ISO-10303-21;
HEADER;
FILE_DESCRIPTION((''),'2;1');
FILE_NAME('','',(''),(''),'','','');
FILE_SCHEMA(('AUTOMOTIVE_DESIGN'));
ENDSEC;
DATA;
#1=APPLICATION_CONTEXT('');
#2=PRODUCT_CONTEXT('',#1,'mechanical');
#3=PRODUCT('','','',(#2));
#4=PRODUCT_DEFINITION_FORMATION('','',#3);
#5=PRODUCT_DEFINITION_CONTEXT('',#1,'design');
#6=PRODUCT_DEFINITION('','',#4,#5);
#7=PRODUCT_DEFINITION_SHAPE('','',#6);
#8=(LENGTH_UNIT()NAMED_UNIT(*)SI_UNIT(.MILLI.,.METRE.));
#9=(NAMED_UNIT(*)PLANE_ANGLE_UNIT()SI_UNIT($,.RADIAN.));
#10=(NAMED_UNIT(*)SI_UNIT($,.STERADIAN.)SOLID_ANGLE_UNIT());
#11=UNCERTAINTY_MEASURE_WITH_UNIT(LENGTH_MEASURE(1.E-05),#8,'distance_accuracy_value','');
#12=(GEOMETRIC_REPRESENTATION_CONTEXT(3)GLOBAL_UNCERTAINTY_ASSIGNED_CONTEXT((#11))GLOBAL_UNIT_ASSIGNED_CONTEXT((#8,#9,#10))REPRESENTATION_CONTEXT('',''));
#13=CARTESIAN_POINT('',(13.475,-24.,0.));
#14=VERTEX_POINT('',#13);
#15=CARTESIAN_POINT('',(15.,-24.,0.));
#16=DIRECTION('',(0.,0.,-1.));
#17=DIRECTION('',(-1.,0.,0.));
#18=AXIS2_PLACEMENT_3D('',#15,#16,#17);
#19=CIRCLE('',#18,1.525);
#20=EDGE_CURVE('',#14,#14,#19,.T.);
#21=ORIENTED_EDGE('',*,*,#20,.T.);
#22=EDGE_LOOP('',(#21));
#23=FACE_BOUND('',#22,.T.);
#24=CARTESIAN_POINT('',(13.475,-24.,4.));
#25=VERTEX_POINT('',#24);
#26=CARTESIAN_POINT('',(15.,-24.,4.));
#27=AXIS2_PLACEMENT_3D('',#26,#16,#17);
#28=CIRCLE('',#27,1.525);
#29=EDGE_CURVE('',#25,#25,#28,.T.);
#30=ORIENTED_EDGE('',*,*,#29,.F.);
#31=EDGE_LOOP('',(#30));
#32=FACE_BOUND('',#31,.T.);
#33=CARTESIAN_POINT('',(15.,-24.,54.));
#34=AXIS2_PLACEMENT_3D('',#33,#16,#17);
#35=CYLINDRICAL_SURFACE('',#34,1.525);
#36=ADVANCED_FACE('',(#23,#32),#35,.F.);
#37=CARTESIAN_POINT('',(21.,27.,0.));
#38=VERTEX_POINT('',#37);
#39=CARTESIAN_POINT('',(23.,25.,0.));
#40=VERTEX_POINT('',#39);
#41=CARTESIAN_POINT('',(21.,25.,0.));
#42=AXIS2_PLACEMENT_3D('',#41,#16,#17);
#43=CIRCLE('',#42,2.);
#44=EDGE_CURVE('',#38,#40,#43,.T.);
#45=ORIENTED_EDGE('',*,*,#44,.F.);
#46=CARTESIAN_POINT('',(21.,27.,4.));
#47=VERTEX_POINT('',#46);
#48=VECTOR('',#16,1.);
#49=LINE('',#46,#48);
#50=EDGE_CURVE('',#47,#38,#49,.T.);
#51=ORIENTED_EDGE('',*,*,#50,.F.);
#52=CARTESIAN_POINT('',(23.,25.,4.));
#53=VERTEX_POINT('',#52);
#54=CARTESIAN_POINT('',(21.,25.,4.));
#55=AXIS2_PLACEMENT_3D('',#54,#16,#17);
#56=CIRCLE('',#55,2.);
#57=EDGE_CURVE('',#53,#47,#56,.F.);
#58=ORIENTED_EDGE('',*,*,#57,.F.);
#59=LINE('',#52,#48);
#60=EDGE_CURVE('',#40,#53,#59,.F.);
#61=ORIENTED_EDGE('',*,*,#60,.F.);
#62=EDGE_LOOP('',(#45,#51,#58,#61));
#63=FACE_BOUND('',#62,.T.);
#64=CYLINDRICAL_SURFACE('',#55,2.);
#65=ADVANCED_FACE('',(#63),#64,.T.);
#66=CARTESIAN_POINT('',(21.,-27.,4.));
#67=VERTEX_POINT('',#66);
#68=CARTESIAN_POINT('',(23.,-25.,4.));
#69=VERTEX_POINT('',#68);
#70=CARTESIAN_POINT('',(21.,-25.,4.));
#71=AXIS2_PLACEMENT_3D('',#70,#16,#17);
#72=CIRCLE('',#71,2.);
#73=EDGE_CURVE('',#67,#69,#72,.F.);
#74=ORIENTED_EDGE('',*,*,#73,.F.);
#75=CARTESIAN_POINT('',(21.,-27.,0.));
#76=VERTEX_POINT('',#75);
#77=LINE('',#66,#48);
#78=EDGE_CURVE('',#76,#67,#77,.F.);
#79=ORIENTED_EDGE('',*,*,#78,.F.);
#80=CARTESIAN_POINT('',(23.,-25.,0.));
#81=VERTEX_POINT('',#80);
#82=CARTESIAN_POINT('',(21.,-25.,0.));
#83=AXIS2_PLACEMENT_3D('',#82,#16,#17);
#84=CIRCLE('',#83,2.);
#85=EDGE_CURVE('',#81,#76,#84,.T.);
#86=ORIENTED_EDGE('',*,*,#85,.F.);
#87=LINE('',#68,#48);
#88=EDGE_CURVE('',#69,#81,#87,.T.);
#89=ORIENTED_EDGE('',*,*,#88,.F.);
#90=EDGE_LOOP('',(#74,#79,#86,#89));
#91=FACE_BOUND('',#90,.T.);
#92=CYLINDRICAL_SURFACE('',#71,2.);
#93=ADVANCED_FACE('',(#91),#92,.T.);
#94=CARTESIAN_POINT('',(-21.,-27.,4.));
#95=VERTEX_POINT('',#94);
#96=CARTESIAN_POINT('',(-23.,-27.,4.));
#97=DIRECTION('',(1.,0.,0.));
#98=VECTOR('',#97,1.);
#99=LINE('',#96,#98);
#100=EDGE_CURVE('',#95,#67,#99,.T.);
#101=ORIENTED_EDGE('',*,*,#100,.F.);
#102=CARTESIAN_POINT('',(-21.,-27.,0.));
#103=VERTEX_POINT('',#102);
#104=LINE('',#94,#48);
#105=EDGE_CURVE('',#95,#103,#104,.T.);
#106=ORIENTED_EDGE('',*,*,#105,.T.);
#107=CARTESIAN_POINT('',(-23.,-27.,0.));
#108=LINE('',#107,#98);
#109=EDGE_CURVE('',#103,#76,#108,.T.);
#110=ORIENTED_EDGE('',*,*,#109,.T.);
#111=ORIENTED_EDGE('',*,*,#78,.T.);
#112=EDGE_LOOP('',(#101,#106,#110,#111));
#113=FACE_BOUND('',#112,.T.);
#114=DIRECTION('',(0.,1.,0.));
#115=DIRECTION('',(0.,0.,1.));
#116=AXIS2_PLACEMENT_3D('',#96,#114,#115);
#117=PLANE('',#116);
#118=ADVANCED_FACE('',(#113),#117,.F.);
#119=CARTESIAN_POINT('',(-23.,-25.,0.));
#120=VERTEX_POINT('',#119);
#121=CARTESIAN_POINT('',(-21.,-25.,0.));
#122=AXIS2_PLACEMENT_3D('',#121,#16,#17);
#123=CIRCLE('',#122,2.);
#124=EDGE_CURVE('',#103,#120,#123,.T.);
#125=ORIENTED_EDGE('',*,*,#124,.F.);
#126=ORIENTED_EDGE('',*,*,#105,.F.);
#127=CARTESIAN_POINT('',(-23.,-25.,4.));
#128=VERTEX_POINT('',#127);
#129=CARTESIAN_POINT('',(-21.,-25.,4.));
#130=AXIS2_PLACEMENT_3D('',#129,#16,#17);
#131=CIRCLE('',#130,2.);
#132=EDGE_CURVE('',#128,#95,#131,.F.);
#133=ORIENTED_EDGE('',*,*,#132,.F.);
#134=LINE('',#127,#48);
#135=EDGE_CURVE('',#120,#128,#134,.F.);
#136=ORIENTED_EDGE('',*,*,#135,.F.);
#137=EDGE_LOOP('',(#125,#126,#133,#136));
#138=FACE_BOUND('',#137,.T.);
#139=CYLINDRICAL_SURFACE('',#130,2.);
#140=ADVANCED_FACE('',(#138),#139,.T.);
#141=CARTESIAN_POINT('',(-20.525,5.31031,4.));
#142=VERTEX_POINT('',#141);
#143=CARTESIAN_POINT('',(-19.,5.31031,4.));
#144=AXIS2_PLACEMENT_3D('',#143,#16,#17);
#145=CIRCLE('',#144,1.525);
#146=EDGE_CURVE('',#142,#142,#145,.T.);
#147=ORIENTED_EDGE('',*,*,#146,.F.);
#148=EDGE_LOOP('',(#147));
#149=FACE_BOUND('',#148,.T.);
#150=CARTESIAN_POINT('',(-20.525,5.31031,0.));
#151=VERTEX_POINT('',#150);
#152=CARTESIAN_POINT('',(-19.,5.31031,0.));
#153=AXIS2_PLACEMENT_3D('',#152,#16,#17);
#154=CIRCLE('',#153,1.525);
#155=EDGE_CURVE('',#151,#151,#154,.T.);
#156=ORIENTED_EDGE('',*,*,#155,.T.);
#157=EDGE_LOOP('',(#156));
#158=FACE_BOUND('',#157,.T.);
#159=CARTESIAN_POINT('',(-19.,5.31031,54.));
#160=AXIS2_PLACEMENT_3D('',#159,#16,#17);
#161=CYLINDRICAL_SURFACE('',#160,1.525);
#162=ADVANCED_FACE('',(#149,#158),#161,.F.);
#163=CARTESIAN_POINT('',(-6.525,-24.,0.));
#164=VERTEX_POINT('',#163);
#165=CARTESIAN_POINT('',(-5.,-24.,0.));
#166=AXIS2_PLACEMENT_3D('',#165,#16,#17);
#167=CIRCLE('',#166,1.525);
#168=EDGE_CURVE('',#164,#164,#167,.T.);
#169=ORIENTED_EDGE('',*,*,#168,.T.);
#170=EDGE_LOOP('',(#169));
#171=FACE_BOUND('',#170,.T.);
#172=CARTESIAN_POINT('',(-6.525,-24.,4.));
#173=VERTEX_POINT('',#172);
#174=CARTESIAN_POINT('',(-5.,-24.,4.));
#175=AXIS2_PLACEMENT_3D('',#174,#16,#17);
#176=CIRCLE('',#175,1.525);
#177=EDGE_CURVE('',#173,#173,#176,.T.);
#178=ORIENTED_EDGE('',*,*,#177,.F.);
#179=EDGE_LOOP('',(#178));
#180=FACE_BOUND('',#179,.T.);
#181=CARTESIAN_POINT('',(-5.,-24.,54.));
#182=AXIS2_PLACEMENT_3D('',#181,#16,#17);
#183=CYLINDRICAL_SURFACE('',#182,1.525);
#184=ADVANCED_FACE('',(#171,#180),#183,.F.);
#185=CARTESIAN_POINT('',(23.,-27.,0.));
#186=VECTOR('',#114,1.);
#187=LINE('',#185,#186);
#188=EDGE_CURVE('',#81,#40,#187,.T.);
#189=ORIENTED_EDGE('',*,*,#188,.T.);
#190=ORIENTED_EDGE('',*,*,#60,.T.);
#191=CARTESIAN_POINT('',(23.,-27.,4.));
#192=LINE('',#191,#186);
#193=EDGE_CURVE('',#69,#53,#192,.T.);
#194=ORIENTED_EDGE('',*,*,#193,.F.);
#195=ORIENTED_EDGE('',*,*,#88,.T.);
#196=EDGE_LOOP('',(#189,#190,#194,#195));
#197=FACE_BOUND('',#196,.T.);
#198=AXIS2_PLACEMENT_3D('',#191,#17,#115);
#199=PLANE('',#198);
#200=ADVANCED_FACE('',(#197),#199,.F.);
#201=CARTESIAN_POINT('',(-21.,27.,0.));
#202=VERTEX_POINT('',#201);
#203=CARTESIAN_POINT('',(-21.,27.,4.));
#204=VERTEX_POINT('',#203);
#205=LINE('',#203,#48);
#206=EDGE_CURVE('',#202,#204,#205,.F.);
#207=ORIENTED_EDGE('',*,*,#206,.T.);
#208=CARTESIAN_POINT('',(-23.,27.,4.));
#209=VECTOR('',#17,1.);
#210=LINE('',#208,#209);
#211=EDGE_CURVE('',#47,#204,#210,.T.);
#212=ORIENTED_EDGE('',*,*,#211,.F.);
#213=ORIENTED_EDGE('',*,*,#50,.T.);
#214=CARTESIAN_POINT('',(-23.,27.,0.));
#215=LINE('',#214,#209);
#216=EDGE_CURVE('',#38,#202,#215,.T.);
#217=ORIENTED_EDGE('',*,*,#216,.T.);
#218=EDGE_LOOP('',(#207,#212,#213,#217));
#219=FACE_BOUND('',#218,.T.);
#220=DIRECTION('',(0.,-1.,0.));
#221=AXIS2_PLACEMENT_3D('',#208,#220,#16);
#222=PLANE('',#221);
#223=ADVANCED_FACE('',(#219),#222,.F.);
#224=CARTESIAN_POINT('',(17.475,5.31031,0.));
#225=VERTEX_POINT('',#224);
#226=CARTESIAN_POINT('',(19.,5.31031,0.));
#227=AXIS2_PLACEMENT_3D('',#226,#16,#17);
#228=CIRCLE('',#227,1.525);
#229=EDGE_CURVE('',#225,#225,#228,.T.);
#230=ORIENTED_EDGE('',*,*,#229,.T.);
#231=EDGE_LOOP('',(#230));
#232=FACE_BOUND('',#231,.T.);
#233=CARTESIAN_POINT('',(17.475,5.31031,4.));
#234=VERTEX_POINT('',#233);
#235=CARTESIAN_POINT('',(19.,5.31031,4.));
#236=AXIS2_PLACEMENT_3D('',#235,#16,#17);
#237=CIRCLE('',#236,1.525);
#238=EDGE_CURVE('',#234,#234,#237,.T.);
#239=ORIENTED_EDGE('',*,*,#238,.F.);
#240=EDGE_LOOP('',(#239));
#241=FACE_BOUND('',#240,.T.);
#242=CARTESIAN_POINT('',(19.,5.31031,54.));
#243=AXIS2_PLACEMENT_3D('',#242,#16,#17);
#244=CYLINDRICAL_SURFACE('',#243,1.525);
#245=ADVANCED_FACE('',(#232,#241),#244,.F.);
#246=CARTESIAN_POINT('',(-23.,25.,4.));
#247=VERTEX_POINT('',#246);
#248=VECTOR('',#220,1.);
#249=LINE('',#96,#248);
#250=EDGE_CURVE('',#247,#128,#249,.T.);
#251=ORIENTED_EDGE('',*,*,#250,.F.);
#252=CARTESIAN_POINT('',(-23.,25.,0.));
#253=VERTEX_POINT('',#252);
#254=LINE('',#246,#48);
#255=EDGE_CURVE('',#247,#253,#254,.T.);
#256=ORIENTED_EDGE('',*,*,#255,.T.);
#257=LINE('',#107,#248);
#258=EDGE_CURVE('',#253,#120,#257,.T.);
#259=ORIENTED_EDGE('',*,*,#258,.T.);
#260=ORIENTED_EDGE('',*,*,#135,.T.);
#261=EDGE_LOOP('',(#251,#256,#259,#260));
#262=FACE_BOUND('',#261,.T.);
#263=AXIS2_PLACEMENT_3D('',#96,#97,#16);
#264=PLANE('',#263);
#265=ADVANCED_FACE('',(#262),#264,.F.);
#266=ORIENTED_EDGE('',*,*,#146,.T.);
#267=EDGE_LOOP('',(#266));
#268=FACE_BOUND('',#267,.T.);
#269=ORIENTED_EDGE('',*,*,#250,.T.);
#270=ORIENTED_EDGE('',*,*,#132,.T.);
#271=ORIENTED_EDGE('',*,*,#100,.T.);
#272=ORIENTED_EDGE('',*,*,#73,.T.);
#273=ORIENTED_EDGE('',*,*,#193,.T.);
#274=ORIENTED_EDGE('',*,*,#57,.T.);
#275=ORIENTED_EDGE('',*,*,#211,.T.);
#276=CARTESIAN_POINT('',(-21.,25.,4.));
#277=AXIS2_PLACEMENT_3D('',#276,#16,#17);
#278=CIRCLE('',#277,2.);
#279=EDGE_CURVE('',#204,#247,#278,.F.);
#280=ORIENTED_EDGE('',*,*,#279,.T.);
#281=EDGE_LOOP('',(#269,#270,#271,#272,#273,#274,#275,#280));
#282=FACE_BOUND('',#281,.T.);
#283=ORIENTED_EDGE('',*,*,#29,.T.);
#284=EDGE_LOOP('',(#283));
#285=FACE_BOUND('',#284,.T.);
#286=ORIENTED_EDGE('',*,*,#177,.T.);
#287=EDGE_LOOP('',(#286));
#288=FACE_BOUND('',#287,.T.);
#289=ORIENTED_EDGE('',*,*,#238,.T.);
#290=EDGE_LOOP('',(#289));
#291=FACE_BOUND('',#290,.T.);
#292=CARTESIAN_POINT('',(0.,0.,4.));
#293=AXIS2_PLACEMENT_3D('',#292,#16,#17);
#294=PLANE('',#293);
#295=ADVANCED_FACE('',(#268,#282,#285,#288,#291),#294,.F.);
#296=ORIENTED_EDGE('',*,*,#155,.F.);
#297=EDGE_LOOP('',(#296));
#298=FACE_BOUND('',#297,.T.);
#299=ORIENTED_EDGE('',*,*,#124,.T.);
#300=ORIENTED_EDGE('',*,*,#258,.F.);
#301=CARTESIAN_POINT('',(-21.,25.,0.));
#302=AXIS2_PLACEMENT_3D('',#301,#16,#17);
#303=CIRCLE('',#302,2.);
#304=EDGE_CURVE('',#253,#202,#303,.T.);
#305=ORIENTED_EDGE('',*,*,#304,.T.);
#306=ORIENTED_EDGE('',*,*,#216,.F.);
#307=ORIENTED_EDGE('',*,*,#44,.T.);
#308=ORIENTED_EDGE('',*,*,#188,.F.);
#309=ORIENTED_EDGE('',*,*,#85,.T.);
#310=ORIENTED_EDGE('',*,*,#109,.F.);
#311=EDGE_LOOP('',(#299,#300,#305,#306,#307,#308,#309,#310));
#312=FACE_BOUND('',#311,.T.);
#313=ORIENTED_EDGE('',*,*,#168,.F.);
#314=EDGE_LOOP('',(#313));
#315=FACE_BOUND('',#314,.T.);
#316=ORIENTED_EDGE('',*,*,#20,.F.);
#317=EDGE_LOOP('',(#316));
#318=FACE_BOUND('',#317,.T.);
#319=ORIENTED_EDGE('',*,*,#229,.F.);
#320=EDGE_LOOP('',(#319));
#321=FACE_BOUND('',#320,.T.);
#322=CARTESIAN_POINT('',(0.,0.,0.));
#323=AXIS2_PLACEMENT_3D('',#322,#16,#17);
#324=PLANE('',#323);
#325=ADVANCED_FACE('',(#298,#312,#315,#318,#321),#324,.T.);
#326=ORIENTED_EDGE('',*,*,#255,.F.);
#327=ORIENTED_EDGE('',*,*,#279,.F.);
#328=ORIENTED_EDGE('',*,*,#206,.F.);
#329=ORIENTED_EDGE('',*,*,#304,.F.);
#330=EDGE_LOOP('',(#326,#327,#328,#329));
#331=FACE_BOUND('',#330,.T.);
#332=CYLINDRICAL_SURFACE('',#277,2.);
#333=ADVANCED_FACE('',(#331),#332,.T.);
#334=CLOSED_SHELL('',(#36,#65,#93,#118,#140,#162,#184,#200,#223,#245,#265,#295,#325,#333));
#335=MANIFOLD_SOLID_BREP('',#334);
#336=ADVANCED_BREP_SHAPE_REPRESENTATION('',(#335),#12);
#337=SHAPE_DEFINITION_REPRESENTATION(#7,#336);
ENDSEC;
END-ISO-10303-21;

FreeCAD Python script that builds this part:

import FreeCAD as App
import Part
import Sketcher

V = App.Vector


def edges_at(feature, points):
    """Names of the edges that pass closest to the given points."""
    edges = feature.Shape.Edges
    near = lambda p: min(range(len(edges)), key=lambda i: edges[i].distToShape(Part.Vertex(*p))[0])
    return sorted({f"Edge{near(p) + 1}" for p in points})


def add_polygon(sketch, points):
    """Adds a closed chain of lines whose ends are joined by coincident constraints."""
    first, n = sketch.GeometryCount, len(points)
    for a, b in zip(points, points[1:] + points[:1]):
        sketch.addGeometry(Part.LineSegment(App.Vector(*a, 0), App.Vector(*b, 0)), False)
    for i in range(n):
        sketch.addConstraint(Sketcher.Constraint("Coincident", first + i, 2, first + (i + 1) % n, 1))

doc = App.newDocument("Part")
body = doc.addObject("PartDesign::Body", "Body")

sketch1 = doc.addObject("Sketcher::SketchObject", "Sketch")
body.addObject(sketch1)
sketch1.AttachmentSupport = (doc.XY_Plane, [""])
sketch1.MapMode = "FlatFace"
add_polygon(sketch1, [(-23, 27), (-23, -27), (23, -27), (23, 27)])
sketch1.addConstraint([
    Sketcher.Constraint("Vertical", 0),
    Sketcher.Constraint("Horizontal", 1),
    Sketcher.Constraint("Vertical", 2),
    Sketcher.Constraint("Horizontal", 3),
    Sketcher.Constraint("Symmetric", 0, 2, 2, 2, -1, 1),
    Sketcher.Constraint("DistanceX", 1, 1, 1, 2, 46.0),
    Sketcher.Constraint("DistanceY", 0, 2, 0, 1, 54.0),
])
pad1 = doc.addObject("PartDesign::Pad", "Pad")
body.addObject(pad1)
pad1.Profile = sketch1
pad1.Length = 4

sketch2 = doc.addObject("Sketcher::SketchObject", "Sketch001")
body.addObject(sketch2)
sketch2.AttachmentSupport = (doc.XY_Plane, [""])
sketch2.MapMode = "FlatFace"
sketch2.addGeometry([
    Part.Circle(V(-5, -24, 0), V(0, 0, 1), 1.5),
    Part.Circle(V(15, -24, 0), V(0, 0, 1), 1.5),
    Part.Circle(V(19, 5.3, 0), V(0, 0, 1), 1.5),
    Part.Circle(V(-19, 5.3, 0), V(0, 0, 1), 1.5),
], False)
sketch2.addConstraint([
    Sketcher.Constraint("Equal", 0, 1),
    Sketcher.Constraint("Equal", 1, 2),
    Sketcher.Constraint("Equal", 2, 3),
    Sketcher.Constraint("Symmetric", 2, 3, 3, 3, -2),
    Sketcher.Constraint("Horizontal", 0, 3, 1, 3),
    Sketcher.Constraint("Diameter", 0, 3.05),
    Sketcher.Constraint("DistanceX", 0, 3, -1, 1, 5.0),
    Sketcher.Constraint("DistanceY", 0, 3, -1, 1, 24.0),
    Sketcher.Constraint("DistanceX", -1, 1, 1, 3, 15.0),
    Sketcher.Constraint("DistanceX", -1, 1, 2, 3, 19.0),
    Sketcher.Constraint("DistanceY", -1, 1, 2, 3, 5.31031),
])
pocket1 = doc.addObject("PartDesign::Pocket", "Pocket")
body.addObject(pocket1)
pocket1.Profile = sketch2
pocket1.Length = 54
pocket1.Reversed = True
doc.recompute()

fillet = doc.addObject("PartDesign::Fillet", "Fillet")
body.addObject(fillet)
fillet.Base = (pocket1, edges_at(pocket1, [
    (23, -27, 2),
    (-23, -27, 2),
    (-23, 27, 2),
    (23, 27, 2),
]))
fillet.Radius = 2

doc.recompute()
